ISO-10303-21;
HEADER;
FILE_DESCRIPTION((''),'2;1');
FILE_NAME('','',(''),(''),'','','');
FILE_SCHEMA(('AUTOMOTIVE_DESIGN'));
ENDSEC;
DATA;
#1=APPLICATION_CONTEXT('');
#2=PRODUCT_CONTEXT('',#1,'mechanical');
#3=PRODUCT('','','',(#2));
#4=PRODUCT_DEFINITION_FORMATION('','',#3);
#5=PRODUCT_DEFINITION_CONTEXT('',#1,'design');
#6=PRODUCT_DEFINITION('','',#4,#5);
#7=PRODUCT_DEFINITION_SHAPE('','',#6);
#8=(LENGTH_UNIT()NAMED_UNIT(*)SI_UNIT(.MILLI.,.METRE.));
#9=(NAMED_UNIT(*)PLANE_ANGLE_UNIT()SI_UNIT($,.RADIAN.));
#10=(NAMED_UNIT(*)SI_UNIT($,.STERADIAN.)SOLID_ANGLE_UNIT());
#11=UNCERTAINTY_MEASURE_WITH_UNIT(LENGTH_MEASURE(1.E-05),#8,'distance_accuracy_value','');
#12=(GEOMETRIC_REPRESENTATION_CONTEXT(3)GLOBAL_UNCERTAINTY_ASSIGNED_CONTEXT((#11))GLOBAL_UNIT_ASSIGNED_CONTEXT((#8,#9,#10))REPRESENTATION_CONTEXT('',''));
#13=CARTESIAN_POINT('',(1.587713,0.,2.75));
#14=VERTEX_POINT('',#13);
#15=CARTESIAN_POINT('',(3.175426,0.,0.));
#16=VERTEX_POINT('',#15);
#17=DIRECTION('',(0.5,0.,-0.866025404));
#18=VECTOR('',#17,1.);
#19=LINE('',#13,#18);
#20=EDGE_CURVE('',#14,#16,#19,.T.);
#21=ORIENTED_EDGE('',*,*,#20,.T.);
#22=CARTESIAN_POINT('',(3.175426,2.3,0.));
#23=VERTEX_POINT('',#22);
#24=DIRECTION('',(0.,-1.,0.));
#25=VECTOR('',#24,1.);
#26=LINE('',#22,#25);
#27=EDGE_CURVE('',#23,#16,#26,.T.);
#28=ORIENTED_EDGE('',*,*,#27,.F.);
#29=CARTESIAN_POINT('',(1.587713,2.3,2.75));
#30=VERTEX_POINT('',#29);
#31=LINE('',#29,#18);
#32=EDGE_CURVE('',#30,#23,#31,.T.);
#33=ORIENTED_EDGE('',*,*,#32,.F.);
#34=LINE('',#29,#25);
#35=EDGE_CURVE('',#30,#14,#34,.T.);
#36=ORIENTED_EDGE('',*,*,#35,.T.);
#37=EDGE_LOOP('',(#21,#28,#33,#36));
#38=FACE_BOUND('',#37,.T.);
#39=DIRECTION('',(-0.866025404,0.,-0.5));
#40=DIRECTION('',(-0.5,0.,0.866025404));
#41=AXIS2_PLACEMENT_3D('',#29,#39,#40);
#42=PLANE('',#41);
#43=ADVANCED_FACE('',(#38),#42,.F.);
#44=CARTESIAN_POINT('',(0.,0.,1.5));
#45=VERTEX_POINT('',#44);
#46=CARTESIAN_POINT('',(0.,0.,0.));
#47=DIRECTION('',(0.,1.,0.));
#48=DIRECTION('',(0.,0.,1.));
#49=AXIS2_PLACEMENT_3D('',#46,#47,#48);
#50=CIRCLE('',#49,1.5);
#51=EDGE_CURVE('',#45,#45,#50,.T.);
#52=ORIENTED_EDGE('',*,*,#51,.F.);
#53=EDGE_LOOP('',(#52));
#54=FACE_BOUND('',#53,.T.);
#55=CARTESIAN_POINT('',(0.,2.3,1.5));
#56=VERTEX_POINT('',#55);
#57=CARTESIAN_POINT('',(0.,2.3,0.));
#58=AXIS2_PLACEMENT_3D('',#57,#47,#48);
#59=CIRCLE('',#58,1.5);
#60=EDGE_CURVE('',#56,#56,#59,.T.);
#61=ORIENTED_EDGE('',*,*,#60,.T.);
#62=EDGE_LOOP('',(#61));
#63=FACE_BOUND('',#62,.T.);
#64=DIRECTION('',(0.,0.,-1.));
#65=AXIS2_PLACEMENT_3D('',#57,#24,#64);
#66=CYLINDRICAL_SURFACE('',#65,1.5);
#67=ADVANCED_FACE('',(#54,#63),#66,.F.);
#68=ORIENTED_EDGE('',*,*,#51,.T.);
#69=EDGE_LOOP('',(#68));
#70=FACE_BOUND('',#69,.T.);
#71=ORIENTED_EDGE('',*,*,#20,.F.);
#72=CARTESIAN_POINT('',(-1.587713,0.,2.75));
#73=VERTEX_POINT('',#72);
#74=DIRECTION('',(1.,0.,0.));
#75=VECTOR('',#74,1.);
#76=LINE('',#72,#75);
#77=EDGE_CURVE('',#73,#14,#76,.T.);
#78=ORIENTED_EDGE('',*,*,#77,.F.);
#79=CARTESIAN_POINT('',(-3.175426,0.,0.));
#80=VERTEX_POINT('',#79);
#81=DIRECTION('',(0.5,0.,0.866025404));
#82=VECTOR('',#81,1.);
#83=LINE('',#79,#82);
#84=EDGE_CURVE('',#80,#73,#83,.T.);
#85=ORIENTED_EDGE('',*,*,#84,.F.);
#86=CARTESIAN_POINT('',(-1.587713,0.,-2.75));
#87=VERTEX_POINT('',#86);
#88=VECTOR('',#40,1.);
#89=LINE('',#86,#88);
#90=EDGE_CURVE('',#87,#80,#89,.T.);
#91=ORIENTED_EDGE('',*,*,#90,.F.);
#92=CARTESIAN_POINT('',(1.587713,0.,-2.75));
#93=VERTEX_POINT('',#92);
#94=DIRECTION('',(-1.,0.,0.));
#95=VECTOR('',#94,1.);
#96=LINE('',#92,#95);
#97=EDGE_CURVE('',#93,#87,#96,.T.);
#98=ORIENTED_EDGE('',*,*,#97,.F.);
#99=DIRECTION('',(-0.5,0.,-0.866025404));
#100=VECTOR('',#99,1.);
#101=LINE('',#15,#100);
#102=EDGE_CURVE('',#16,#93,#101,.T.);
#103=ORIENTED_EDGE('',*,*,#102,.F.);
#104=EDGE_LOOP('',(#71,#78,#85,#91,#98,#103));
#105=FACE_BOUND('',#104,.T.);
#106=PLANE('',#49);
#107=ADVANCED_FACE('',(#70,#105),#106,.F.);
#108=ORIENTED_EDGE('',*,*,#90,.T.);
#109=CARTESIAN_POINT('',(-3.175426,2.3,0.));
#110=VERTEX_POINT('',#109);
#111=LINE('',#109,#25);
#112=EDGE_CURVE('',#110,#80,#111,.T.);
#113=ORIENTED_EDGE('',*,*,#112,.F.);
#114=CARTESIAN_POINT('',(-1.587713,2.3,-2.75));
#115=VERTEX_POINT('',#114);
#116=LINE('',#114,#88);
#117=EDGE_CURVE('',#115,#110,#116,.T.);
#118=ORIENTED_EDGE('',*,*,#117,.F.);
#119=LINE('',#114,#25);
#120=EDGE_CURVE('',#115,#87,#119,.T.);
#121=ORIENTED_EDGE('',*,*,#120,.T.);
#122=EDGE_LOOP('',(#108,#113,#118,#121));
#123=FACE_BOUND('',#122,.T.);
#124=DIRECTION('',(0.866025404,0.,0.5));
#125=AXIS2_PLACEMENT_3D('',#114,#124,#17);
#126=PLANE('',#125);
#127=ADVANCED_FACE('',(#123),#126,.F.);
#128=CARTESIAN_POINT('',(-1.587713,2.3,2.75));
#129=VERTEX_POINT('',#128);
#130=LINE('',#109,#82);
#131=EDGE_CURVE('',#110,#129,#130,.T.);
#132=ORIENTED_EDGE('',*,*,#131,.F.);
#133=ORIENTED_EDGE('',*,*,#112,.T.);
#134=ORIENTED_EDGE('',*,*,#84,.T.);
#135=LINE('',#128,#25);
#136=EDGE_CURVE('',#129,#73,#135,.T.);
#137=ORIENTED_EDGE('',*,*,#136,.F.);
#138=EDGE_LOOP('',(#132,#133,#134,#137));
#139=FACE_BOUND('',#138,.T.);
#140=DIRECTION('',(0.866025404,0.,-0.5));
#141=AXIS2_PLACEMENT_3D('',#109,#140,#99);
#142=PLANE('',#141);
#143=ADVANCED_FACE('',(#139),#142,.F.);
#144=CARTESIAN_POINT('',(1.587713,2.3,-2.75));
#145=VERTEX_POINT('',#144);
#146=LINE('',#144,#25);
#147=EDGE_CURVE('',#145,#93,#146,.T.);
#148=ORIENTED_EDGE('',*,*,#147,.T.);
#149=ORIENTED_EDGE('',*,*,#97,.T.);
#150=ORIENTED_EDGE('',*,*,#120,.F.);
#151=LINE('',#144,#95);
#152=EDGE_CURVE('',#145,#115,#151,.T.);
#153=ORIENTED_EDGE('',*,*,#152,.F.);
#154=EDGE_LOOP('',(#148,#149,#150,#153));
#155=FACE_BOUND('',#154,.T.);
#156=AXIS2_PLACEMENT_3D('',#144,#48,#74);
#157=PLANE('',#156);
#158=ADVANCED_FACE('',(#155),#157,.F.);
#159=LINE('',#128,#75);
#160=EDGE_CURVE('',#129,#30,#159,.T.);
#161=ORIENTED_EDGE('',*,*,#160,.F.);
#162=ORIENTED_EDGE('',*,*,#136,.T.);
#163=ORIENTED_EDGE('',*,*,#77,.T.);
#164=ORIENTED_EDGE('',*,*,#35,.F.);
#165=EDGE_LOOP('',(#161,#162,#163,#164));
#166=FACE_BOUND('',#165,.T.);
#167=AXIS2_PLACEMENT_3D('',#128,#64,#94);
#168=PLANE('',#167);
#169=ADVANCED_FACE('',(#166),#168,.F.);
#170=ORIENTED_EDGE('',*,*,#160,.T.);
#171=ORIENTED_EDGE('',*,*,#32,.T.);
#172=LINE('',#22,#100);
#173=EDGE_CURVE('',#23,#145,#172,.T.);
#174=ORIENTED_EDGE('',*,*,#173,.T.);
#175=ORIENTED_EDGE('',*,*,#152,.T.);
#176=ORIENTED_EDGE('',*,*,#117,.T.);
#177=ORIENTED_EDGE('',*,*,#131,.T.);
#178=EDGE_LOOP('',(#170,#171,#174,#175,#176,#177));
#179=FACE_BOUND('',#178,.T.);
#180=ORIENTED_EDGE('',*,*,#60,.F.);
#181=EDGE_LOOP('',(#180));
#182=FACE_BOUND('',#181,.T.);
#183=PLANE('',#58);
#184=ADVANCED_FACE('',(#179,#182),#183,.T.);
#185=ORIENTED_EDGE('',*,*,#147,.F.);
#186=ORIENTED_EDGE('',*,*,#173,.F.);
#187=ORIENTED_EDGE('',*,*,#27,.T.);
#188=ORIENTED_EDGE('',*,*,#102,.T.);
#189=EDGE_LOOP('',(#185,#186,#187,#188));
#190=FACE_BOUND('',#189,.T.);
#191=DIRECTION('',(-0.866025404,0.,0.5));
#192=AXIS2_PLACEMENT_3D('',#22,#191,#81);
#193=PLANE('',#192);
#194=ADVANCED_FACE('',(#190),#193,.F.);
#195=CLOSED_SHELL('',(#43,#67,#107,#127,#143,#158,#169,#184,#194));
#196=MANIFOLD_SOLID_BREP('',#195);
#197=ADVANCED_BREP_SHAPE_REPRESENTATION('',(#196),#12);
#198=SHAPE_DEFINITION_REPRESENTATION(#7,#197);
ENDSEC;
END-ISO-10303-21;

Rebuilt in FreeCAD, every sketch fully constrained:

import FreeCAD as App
import Part
import Sketcher
Q = App.Units.Quantity

doc = App.newDocument("Part")
body = doc.addObject("PartDesign::Body", "Body")

# Sketch on XZ plane
sketch1 = body.newObject("Sketcher::SketchObject", "Sketch")
sketch1.AttachmentSupport = (doc.getObject("XZ_Plane"), [""])
sketch1.MapMode = "FlatFace"
sketch1.addGeometry(Part.LineSegment(App.Vector(3.2, 0, 0), App.Vector(1.6, -2.8, 0)), False)
sketch1.addGeometry(Part.LineSegment(App.Vector(1.6, -2.8, 0), App.Vector(-1.6, -2.8, 0)), False)
sketch1.addGeometry(Part.LineSegment(App.Vector(-1.6, -2.8, 0), App.Vector(-3.2, 0, 0)), False)
sketch1.addGeometry(Part.LineSegment(App.Vector(-3.2, 0, 0), App.Vector(-1.6, 2.8, 0)), False)
sketch1.addGeometry(Part.LineSegment(App.Vector(-1.6, 2.8, 0), App.Vector(1.6, 2.8, 0)), False)
sketch1.addGeometry(Part.LineSegment(App.Vector(1.6, 2.8, 0), App.Vector(3.2, 0, 0)), False)
sketch1.addGeometry(Part.Circle(App.Vector(0, 0, 0), App.Vector(0, 0, 1), 1.5), False)
sketch1.addConstraint(Sketcher.Constraint("Coincident", 0, 2, 1, 1))
sketch1.addConstraint(Sketcher.Constraint("Coincident", 1, 2, 2, 1))
sketch1.addConstraint(Sketcher.Constraint("Coincident", 2, 2, 3, 1))
sketch1.addConstraint(Sketcher.Constraint("Coincident", 3, 2, 4, 1))
sketch1.addConstraint(Sketcher.Constraint("Coincident", 4, 2, 5, 1))
sketch1.addConstraint(Sketcher.Constraint("Coincident", 5, 2, 0, 1))
sketch1.addConstraint(Sketcher.Constraint("Horizontal", 1))
sketch1.addConstraint(Sketcher.Constraint("Horizontal", 4))
sketch1.addConstraint(Sketcher.Constraint("Coincident", 6, 3, -1, 1))
sketch1.addConstraint(Sketcher.Constraint("Symmetric", 0, 2, 3, 2, -1, 1))
sketch1.addConstraint(Sketcher.Constraint("Symmetric", 2, 2, 5, 2, -1, 1))
sketch1.addConstraint(Sketcher.Constraint("PointOnObject", 2, 2, -1))
sketch1.addConstraint(Sketcher.Constraint("Parallel", 2, 5))
sketch1.addConstraint(Sketcher.Constraint("Vertical", 1, 2, 3, 2))
sketch1.addConstraint(Sketcher.Constraint("Diameter", 6, 3.0))
sketch1.addConstraint(Sketcher.Constraint("Angle", 0, Q("-120 deg")))
sketch1.addConstraint(Sketcher.Constraint("DistanceY", 1, 2, 3, 2, 5.5))
sketch1.addConstraint(Sketcher.Constraint("DistanceX", 1, 2, 1, 1, 3.175426))
pad1 = body.newObject("PartDesign::Pad", "Pad")
pad1.Profile = sketch1
pad1.Length = 2.3
pad1.Reversed = True

doc.recompute()
